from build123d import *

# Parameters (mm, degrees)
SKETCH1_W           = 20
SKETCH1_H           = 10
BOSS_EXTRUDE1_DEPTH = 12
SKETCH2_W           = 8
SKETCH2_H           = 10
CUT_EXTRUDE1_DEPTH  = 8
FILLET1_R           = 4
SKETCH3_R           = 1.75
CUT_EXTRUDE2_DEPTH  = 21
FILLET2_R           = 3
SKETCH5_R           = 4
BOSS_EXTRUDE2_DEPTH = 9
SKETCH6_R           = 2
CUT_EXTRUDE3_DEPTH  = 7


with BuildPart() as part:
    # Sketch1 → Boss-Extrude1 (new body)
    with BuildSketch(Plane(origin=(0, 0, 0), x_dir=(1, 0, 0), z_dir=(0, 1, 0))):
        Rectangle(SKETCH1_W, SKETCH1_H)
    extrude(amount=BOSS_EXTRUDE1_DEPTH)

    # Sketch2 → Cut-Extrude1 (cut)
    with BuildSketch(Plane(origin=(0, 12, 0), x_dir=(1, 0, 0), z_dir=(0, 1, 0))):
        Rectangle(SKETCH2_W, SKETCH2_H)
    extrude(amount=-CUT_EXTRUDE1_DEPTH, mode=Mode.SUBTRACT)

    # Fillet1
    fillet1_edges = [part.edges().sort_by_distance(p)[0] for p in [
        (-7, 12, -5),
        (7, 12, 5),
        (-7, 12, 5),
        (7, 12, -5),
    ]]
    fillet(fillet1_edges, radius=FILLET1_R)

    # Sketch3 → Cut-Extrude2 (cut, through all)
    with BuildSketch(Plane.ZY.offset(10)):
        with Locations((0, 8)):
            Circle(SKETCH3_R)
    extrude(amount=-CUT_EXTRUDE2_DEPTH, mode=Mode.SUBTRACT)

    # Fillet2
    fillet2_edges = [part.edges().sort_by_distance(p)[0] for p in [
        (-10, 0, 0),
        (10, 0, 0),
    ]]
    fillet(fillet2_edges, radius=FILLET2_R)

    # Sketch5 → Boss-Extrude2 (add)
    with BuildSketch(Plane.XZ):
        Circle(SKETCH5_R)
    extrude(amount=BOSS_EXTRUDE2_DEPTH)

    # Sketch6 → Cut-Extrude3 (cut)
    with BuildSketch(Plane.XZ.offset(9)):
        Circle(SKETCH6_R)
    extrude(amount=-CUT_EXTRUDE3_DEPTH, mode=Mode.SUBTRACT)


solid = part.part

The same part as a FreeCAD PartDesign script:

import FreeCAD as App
import Part
import Sketcher
from FreeCAD import Vector
Q = App.Units.Quantity


def edges_at(feature, points):
    """Names of the edges that pass closest to the given points."""
    edges = feature.Shape.Edges
    near = lambda p: min(range(len(edges)), key=lambda i: edges[i].distToShape(Part.Vertex(*p))[0])
    return sorted({f"Edge{near(p) + 1}" for p in points})


def add_polygon(sketch, points):
    """Adds a closed chain of lines whose ends are joined by coincident constraints."""
    first, n = sketch.GeometryCount, len(points)
    for a, b in zip(points, points[1:] + points[:1]):
        sketch.addGeometry(Part.LineSegment(App.Vector(*a, 0), App.Vector(*b, 0)), False)
    for i in range(n):
        sketch.addConstraint(Sketcher.Constraint("Coincident", first + i, 2, first + (i + 1) % n, 1))

doc = App.newDocument("Part")
body = doc.addObject("PartDesign::Body", "Body")

sketch1 = body.newObject("Sketcher::SketchObject", "Sketch")
sketch1.AttachmentSupport = (doc.getObject("XZ_Plane"), [""])
sketch1.MapMode = "FlatFace"
add_polygon(sketch1, [(-10, -5), (-10, 5), (10, 5), (10, -5)])
sketch1.addConstraint(Sketcher.Constraint("Vertical", 0))
sketch1.addConstraint(Sketcher.Constraint("Horizontal", 1))
sketch1.addConstraint(Sketcher.Constraint("Vertical", 2))
sketch1.addConstraint(Sketcher.Constraint("Horizontal", 3))
sketch1.addConstraint(Sketcher.Constraint("Symmetric", 0, 2, 2, 2, -1, 1))
sketch1.addConstraint(Sketcher.Constraint("DistanceX", 1, 1, 1, 2, Q("20 mm")))
sketch1.addConstraint(Sketcher.Constraint("DistanceY", 0, 1, 0, 2, Q("10 mm")))
pad1 = body.newObject("PartDesign::Pad", "Pad")
pad1.Profile = sketch1
pad1.Length = 12
pad1.Reversed = True

sketch2 = body.newObject("Sketcher::SketchObject", "Sketch001")
sketch2.AttachmentSupport = (doc.getObject("XZ_Plane"), [""])
sketch2.MapMode = "FlatFace"
sketch2.AttachmentOffset = App.Placement(Vector(0, 0, -12), App.Rotation())
add_polygon(sketch2, [(-4, -5), (-4, 5), (4, 5), (4, -5)])
sketch2.addConstraint(Sketcher.Constraint("Vertical", 0))
sketch2.addConstraint(Sketcher.Constraint("Horizontal", 1))
sketch2.addConstraint(Sketcher.Constraint("Vertical", 2))
sketch2.addConstraint(Sketcher.Constraint("Horizontal", 3))
sketch2.addConstraint(Sketcher.Constraint("Symmetric", 0, 2, 2, 2, -1, 1))
sketch2.addConstraint(Sketcher.Constraint("DistanceX", 1, 1, 1, 2, Q("8 mm")))
sketch2.addConstraint(Sketcher.Constraint("DistanceY", 0, 1, 0, 2, Q("10 mm")))
pocket1 = body.newObject("PartDesign::Pocket", "Pocket")
pocket1.Profile = sketch2
pocket1.Length = 8
pocket1.Reversed = True
doc.recompute()

fillet = body.newObject("PartDesign::Fillet", "Fillet")
fillet.Base = (pocket1, edges_at(pocket1, [
    (-7, 12, -5),
    (7, 12, 5),
    (-7, 12, 5),
    (7, 12, -5),
]))
fillet.Radius = 4

sketch3 = body.newObject("Sketcher::SketchObject", "Sketch002")
sketch3.AttachmentSupport = (doc.getObject("YZ_Plane"), [""])
sketch3.MapMode = "FlatFace"
sketch3.AttachmentOffset = App.Placement(Vector(0, 0, -10), App.Rotation())
sketch3.addGeometry(Part.Circle(Vector(8, 0, 0), Vector(0, 0, 1), 1.8), False)
sketch3.addConstraint(Sketcher.Constraint("PointOnObject", 0, 3, -1))
sketch3.addConstraint(Sketcher.Constraint("Diameter", 0, Q("3.5 mm")))
sketch3.addConstraint(Sketcher.Constraint("DistanceX", -1, 1, 0, 3, Q("8 mm")))
pocket2 = body.newObject("PartDesign::Pocket", "Pocket001")
pocket2.Profile = sketch3
pocket2.Type = "ThroughAll"
pocket2.Reversed = True
doc.recompute()

fillet2 = body.newObject("PartDesign::Fillet", "Fillet001")
fillet2.Base = (pocket2, edges_at(pocket2, [(-10, 0, 0), (10, 0, 0)]))
fillet2.Radius = 3

sketch4 = body.newObject("Sketcher::SketchObject", "Sketch003")
sketch4.AttachmentSupport = (doc.getObject("XZ_Plane"), [""])
sketch4.MapMode = "FlatFace"
sketch4.addGeometry(Part.Circle(Vector(0, 0, 0), Vector(0, 0, 1), 4), False)
sketch4.addConstraint(Sketcher.Constraint("Coincident", 0, 3, -1, 1))
sketch4.addConstraint(Sketcher.Constraint("Diameter", 0, Q("8 mm")))
pad2 = body.newObject("PartDesign::Pad", "Pad001")
pad2.Profile = sketch4
pad2.Length = 9

sketch5 = body.newObject("Sketcher::SketchObject", "Sketch004")
sketch5.AttachmentSupport = (doc.getObject("XZ_Plane"), [""])
sketch5.MapMode = "FlatFace"
sketch5.AttachmentOffset = App.Placement(Vector(0, 0, 9), App.Rotation())
sketch5.addGeometry(Part.Circle(Vector(0, 0, 0), Vector(0, 0, 1), 2), False)
sketch5.addConstraint(Sketcher.Constraint("Coincident", 0, 3, -1, 1))
sketch5.addConstraint(Sketcher.Constraint("Diameter", 0, Q("4 mm")))
pocket3 = body.newObject("PartDesign::Pocket", "Pocket002")
pocket3.Profile = sketch5
pocket3.Length = 7

doc.recompute()
